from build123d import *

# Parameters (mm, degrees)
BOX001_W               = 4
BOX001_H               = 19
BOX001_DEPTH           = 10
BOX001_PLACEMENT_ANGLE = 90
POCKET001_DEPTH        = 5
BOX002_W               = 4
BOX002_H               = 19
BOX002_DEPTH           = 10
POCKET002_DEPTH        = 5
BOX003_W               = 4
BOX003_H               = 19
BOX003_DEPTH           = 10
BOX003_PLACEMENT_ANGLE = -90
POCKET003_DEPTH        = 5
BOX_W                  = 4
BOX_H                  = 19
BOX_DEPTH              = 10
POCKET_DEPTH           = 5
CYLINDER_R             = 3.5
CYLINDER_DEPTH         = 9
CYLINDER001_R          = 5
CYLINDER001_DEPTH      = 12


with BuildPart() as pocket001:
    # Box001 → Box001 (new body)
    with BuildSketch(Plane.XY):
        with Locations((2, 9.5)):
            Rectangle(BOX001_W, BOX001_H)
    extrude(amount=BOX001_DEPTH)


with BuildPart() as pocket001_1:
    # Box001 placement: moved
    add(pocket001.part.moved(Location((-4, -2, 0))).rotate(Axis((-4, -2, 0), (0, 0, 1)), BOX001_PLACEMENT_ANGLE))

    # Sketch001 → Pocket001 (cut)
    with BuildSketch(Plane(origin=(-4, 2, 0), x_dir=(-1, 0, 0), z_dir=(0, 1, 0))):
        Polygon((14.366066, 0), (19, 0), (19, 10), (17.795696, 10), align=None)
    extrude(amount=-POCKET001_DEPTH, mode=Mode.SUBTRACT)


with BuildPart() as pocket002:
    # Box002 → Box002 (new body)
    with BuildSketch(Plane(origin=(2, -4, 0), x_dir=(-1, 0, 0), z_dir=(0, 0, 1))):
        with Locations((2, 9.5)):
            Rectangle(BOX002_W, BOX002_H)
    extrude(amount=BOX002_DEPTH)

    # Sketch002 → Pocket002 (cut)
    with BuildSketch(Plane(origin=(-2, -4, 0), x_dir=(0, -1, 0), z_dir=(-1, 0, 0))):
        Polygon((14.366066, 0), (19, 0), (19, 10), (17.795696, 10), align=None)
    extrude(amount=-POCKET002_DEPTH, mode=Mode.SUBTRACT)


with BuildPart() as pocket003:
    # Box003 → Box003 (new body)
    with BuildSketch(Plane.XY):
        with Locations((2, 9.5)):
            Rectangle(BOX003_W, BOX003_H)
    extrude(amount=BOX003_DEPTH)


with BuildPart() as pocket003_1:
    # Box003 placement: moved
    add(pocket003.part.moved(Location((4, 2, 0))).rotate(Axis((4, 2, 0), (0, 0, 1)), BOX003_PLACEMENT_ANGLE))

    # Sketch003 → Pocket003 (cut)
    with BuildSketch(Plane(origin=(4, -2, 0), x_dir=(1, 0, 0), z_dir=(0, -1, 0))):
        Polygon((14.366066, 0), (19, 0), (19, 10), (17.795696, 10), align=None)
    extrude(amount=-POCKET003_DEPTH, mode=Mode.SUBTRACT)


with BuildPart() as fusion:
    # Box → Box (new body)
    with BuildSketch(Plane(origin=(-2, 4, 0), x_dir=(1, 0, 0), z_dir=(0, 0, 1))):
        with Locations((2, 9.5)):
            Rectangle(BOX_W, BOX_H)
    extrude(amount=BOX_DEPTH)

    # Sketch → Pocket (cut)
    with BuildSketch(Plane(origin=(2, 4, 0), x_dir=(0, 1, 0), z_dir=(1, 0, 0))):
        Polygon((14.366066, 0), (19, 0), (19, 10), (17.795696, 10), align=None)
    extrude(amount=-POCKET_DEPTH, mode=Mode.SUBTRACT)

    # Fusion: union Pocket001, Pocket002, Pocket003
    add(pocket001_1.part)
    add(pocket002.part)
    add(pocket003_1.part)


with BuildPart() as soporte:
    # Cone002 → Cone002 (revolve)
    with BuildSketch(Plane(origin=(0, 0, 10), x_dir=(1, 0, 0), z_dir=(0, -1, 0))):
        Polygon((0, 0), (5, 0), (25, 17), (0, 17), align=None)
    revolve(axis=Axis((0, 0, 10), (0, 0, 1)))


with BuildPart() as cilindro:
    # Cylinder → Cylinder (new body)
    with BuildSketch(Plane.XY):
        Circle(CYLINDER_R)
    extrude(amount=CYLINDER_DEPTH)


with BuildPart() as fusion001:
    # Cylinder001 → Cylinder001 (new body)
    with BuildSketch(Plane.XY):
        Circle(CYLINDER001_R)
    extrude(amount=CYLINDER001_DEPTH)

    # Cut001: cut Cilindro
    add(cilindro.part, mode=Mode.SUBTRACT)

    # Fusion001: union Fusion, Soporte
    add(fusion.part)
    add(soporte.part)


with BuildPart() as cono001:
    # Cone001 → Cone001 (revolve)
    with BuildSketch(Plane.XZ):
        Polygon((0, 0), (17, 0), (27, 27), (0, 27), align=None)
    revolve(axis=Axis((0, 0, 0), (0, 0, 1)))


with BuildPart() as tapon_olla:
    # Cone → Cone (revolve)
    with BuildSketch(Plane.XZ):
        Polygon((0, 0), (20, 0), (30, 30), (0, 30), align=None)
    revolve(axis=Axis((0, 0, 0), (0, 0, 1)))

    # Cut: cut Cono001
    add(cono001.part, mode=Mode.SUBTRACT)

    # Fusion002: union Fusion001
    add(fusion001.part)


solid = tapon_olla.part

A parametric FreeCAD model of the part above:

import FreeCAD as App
import Part
import Sketcher


def add_polygon(sketch, points):
    """Adds a closed chain of lines whose ends are joined by coincident constraints."""
    first, n = sketch.GeometryCount, len(points)
    for a, b in zip(points, points[1:] + points[:1]):
        sketch.addGeometry(Part.LineSegment(App.Vector(*a, 0), App.Vector(*b, 0)), False)
    for i in range(n):
        sketch.addConstraint(Sketcher.Constraint("Coincident", first + i, 2, first + (i + 1) % n, 1))

doc = App.newDocument("Part")
params = doc.addObject("Spreadsheet::Sheet", "Params")
for row, (alias, value) in enumerate([
    ("sketch1_width", "4 mm"),
    ("sketch1_height", "19 mm"),
    ("pad1_length", "10 mm"),
    ("sketch2_height", "10 mm"),
    ("pocket1_length", "5 mm"),
    ("sketch3_width", "4 mm"),
    ("sketch3_height", "19 mm"),
    ("pad2_length", "10 mm"),
    ("sketch4_height", "10 mm"),
    ("pocket2_length", "5 mm"),
    ("sketch5_width", "4 mm"),
    ("sketch5_height", "19 mm"),
    ("pad3_length", "10 mm"),
    ("sketch6_height", "10 mm"),
    ("pocket3_length", "5 mm"),
    ("sketch7_width", "4 mm"),
    ("sketch7_height", "19 mm"),
    ("pad4_length", "10 mm"),
    ("sketch8_height", "10 mm"),
    ("pocket4_length", "5 mm"),
    ("sketch9_width", "5 mm"),
    ("sketch9_width2", "25 mm"),
    ("sketch9_height", "17 mm"),
    ("revolution_angle", "360 deg"),
    ("sketch10_diameter", "7 mm"),
    ("pad5_length", "9 mm"),
    ("sketch11_diameter", "10 mm"),
    ("pad6_length", "12 mm"),
    ("sketch12_width", "17 mm"),
    ("sketch12_width2", "27 mm"),
    ("revolution2_angle", "360 deg"),
    ("sketch13_width", "20 mm"),
    ("sketch13_width2", "30 mm"),
    ("revolution3_angle", "360 deg"),
], start=1):
    params.set(f"A{row}", alias)
    params.set(f"B{row}", "=" + value)
    params.setAlias(f"B{row}", alias)

body = doc.addObject("PartDesign::Body", "Body")

# Sketch on XY plane
sketch1 = body.newObject("Sketcher::SketchObject", "Sketch")
sketch1.AttachmentSupport = (doc.getObject("XY_Plane"), [""])
sketch1.MapMode = "FlatFace"
add_polygon(sketch1, [(0, 19), (0, 0), (4, 0), (4, 19)])  # lines 0-3
sketch1.addConstraint([
    Sketcher.Constraint("Vertical", 0),
    Sketcher.Constraint("Horizontal", 1),
    Sketcher.Constraint("Vertical", 2),
    Sketcher.Constraint("Horizontal", 3),
    Sketcher.Constraint("Coincident", 0, 2, -1, 1),
    Sketcher.Constraint("DistanceX", 1, 1, 1, 2, 4.0),
    Sketcher.Constraint("DistanceY", 0, 2, 0, 1, 19.0),
])
sketch1.setExpression("Constraints[9]", "Params.sketch1_width")
sketch1.setExpression("Constraints[10]", "Params.sketch1_height")
pad1 = body.newObject("PartDesign::Pad", "Pad")
pad1.Profile = sketch1
pad1.setExpression("Length", "Params.pad1_length")
body2 = doc.addObject("PartDesign::Body", "Body001")
doc.recompute()

body.Placement = App.Placement(App.Vector(-4, -2, 0), App.Rotation(App.Vector(0, 0, 1), 90))
boolean = body2.newObject("PartDesign::Boolean", "Boolean")
boolean.Type = "Fuse"
boolean.addObjects([body])

# Sketch on XZ plane
sketch2 = body2.newObject("Sketcher::SketchObject", "Sketch001")
sketch2.AttachmentSupport = (doc.getObject("XZ_Plane001"), [""])
sketch2.MapMode = "FlatFace"
sketch2.AttachmentOffset = App.Placement(App.Vector(0, 0, -2), App.Rotation())
add_polygon(sketch2, [(-18.366066, 0), (-23, 0), (-23, 10), (-21.795696, 10)])  # lines 0-3
sketch2.addConstraint([
    Sketcher.Constraint("Horizontal", 0),
    Sketcher.Constraint("Vertical", 1),
    Sketcher.Constraint("Horizontal", 2),
    Sketcher.Constraint("PointOnObject", 0, 2, -1),
    Sketcher.Constraint("DistanceY", 1, 1, 1, 2, 10.0),
    Sketcher.Constraint("DistanceX", 0, 2, -1, 1, 23.0),
    Sketcher.Constraint("Distance", 3, 10.571772),
    Sketcher.Constraint("DistanceX", 0, 2, 0, 1, 4.633934),
])
sketch2.setExpression("Constraints[8]", "Params.sketch2_height")
pocket1 = body2.newObject("PartDesign::Pocket", "Pocket")
pocket1.Profile = sketch2
pocket1.setExpression("Length", "Params.pocket1_length")
pocket1.Reversed = True
body3 = doc.addObject("PartDesign::Body", "Body002")

# Sketch on XY plane
sketch3 = body3.newObject("Sketcher::SketchObject", "Sketch002")
sketch3.AttachmentSupport = (doc.getObject("XY_Plane002"), [""])
sketch3.MapMode = "FlatFace"
add_polygon(sketch3, [(2, -23), (2, -4), (-2, -4), (-2, -23)])  # lines 0-3
sketch3.addConstraint([
    Sketcher.Constraint("Vertical", 0),
    Sketcher.Constraint("Horizontal", 1),
    Sketcher.Constraint("Vertical", 2),
    Sketcher.Constraint("Horizontal", 3),
    Sketcher.Constraint("DistanceX", 1, 2, 1, 1, 4.0),
    Sketcher.Constraint("DistanceY", 0, 1, 0, 2, 19.0),
    Sketcher.Constraint("DistanceX", -1, 1, 0, 2, 2.0),
    Sketcher.Constraint("DistanceY", 0, 2, -1, 1, 4.0),
])
sketch3.setExpression("Constraints[8]", "Params.sketch3_width")
sketch3.setExpression("Constraints[9]", "Params.sketch3_height")
pad2 = body3.newObject("PartDesign::Pad", "Pad001")
pad2.Profile = sketch3
pad2.setExpression("Length", "Params.pad2_length")

# Sketch on YZ plane
sketch4 = body3.newObject("Sketcher::SketchObject", "Sketch003")
sketch4.AttachmentSupport = (doc.getObject("YZ_Plane002"), [""])
sketch4.MapMode = "FlatFace"
sketch4.AttachmentOffset = App.Placement(App.Vector(0, 0, -2), App.Rotation())
add_polygon(sketch4, [(-18.366066, 0), (-23, 0), (-23, 10), (-21.795696, 10)])  # lines 0-3
sketch4.addConstraint([
    Sketcher.Constraint("Horizontal", 0),
    Sketcher.Constraint("Vertical", 1),
    Sketcher.Constraint("Horizontal", 2),
    Sketcher.Constraint("PointOnObject", 0, 2, -1),
    Sketcher.Constraint("DistanceY", 1, 1, 1, 2, 10.0),
    Sketcher.Constraint("DistanceX", 0, 2, -1, 1, 23.0),
    Sketcher.Constraint("Distance", 3, 10.571772),
    Sketcher.Constraint("DistanceX", 0, 2, 0, 1, 4.633934),
])
sketch4.setExpression("Constraints[8]", "Params.sketch4_height")
pocket2 = body3.newObject("PartDesign::Pocket", "Pocket001")
pocket2.Profile = sketch4
pocket2.setExpression("Length", "Params.pocket2_length")
pocket2.Reversed = True
body4 = doc.addObject("PartDesign::Body", "Body003")

# Sketch on XY plane
sketch5 = body4.newObject("Sketcher::SketchObject", "Sketch004")
sketch5.AttachmentSupport = (doc.getObject("XY_Plane003"), [""])
sketch5.MapMode = "FlatFace"
add_polygon(sketch5, [(0, 19), (0, 0), (4, 0), (4, 19)])  # lines 0-3
sketch5.addConstraint([
    Sketcher.Constraint("Vertical", 0),
    Sketcher.Constraint("Horizontal", 1),
    Sketcher.Constraint("Vertical", 2),
    Sketcher.Constraint("Horizontal", 3),
    Sketcher.Constraint("Coincident", 0, 2, -1, 1),
    Sketcher.Constraint("DistanceX", 1, 1, 1, 2, 4.0),
    Sketcher.Constraint("DistanceY", 0, 2, 0, 1, 19.0),
])
sketch5.setExpression("Constraints[9]", "Params.sketch5_width")
sketch5.setExpression("Constraints[10]", "Params.sketch5_height")
pad3 = body4.newObject("PartDesign::Pad", "Pad002")
pad3.Profile = sketch5
pad3.setExpression("Length", "Params.pad3_length")
body5 = doc.addObject("PartDesign::Body", "Body004")
doc.recompute()

body4.Placement = App.Placement(App.Vector(4, 2, 0), App.Rotation(App.Vector(0, 0, 1), 270))
boolean2 = body5.newObject("PartDesign::Boolean", "Boolean001")
boolean2.Type = "Fuse"
boolean2.addObjects([body4])

# Sketch on XZ plane
sketch6 = body5.newObject("Sketcher::SketchObject", "Sketch005")
sketch6.AttachmentSupport = (doc.getObject("XZ_Plane004"), [""])
sketch6.MapMode = "FlatFace"
sketch6.AttachmentOffset = App.Placement(App.Vector(0, 0, 2), App.Rotation())
add_polygon(sketch6, [(18.366066, 0), (23, 0), (23, 10), (21.795696, 10)])  # lines 0-3
sketch6.addConstraint([
    Sketcher.Constraint("Horizontal", 0),
    Sketcher.Constraint("Vertical", 1),
    Sketcher.Constraint("Horizontal", 2),
    Sketcher.Constraint("PointOnObject", 0, 2, -1),
    Sketcher.Constraint("DistanceY", 1, 1, 1, 2, 10.0),
    Sketcher.Constraint("DistanceX", -1, 1, 0, 2, 23.0),
    Sketcher.Constraint("Distance", 3, 10.571772),
    Sketcher.Constraint("DistanceX", 0, 1, 0, 2, 4.633934),
])
sketch6.setExpression("Constraints[8]", "Params.sketch6_height")
pocket3 = body5.newObject("PartDesign::Pocket", "Pocket002")
pocket3.Profile = sketch6
pocket3.setExpression("Length", "Params.pocket3_length")
body6 = doc.addObject("PartDesign::Body", "Body005")
body6.AllowCompound = True

# Sketch on XY plane
sketch7 = body6.newObject("Sketcher::SketchObject", "Sketch006")
sketch7.AttachmentSupport = (doc.getObject("XY_Plane005"), [""])
sketch7.MapMode = "FlatFace"
add_polygon(sketch7, [(-2, 23), (-2, 4), (2, 4), (2, 23)])  # lines 0-3
sketch7.addConstraint([
    Sketcher.Constraint("Vertical", 0),
    Sketcher.Constraint("Horizontal", 1),
    Sketcher.Constraint("Vertical", 2),
    Sketcher.Constraint("Horizontal", 3),
    Sketcher.Constraint("DistanceX", 1, 1, 1, 2, 4.0),
    Sketcher.Constraint("DistanceY", 0, 2, 0, 1, 19.0),
    Sketcher.Constraint("DistanceX", 0, 2, -1, 1, 2.0),
    Sketcher.Constraint("DistanceY", -1, 1, 0, 2, 4.0),
])
sketch7.setExpression("Constraints[8]", "Params.sketch7_width")
sketch7.setExpression("Constraints[9]", "Params.sketch7_height")
pad4 = body6.newObject("PartDesign::Pad", "Pad003")
pad4.Profile = sketch7
pad4.setExpression("Length", "Params.pad4_length")

# Sketch on YZ plane
sketch8 = body6.newObject("Sketcher::SketchObject", "Sketch007")
sketch8.AttachmentSupport = (doc.getObject("YZ_Plane005"), [""])
sketch8.MapMode = "FlatFace"
sketch8.AttachmentOffset = App.Placement(App.Vector(0, 0, 2), App.Rotation())
add_polygon(sketch8, [(18.366066, 0), (23, 0), (23, 10), (21.795696, 10)])  # lines 0-3
sketch8.addConstraint([
    Sketcher.Constraint("Horizontal", 0),
    Sketcher.Constraint("Vertical", 1),
    Sketcher.Constraint("Horizontal", 2),
    Sketcher.Constraint("PointOnObject", 0, 2, -1),
    Sketcher.Constraint("DistanceY", 1, 1, 1, 2, 10.0),
    Sketcher.Constraint("DistanceX", -1, 1, 0, 2, 23.0),
    Sketcher.Constraint("Distance", 3, 10.571772),
    Sketcher.Constraint("DistanceX", 0, 1, 0, 2, 4.633934),
])
sketch8.setExpression("Constraints[8]", "Params.sketch8_height")
pocket4 = body6.newObject("PartDesign::Pocket", "Pocket003")
pocket4.Profile = sketch8
pocket4.setExpression("Length", "Params.pocket4_length")
doc.recompute()

boolean3 = body6.newObject("PartDesign::Boolean", "Boolean002")
boolean3.Type = "Fuse"
boolean3.addObjects([body2])
doc.recompute()

boolean4 = body6.newObject("PartDesign::Boolean", "Boolean003")
boolean4.Type = "Fuse"
boolean4.addObjects([body3])
doc.recompute()

boolean5 = body6.newObject("PartDesign::Boolean", "Boolean004")
boolean5.Type = "Fuse"
boolean5.addObjects([body5])
body7 = doc.addObject("PartDesign::Body", "Body006")

# Sketch on XZ plane
sketch9 = body7.newObject("Sketcher::SketchObject", "Sketch008")
sketch9.AttachmentSupport = (doc.getObject("XZ_Plane006"), [""])
sketch9.MapMode = "FlatFace"
add_polygon(sketch9, [(0, 10), (5, 10), (25, 27), (0, 27)])  # lines 0-3
sketch9.addConstraint([
    Sketcher.Constraint("Horizontal", 0),
    Sketcher.Constraint("Horizontal", 2),
    Sketcher.Constraint("Vertical", 3),
    Sketcher.Constraint("PointOnObject", 2, 2, -2),
    Sketcher.Constraint("DistanceX", 0, 1, 0, 2, 5.0),
    Sketcher.Constraint("DistanceX", 2, 2, 2, 1, 25.0),
    Sketcher.Constraint("DistanceY", 3, 2, 3, 1, 17.0),
    Sketcher.Constraint("DistanceY", -1, 1, 0, 2, 10.0),
])
sketch9.setExpression("Constraints[8]", "Params.sketch9_width")
sketch9.setExpression("Constraints[9]", "Params.sketch9_width2")
sketch9.setExpression("Constraints[10]", "Params.sketch9_height")
revolution = body7.newObject("PartDesign::Revolution", "Revolution")
revolution.Profile = sketch9
revolution.ReferenceAxis = (sketch9, ["V_Axis"])
revolution.setExpression("Angle", "Params.revolution_angle")
body8 = doc.addObject("PartDesign::Body", "Body007")

# Sketch on XY plane
sketch10 = body8.newObject("Sketcher::SketchObject", "Sketch009")
sketch10.AttachmentSupport = (doc.getObject("XY_Plane007"), [""])
sketch10.MapMode = "FlatFace"
sketch10.addGeometry(Part.Circle(App.Vector(0, 0, 0), App.Vector(0, 0, 1), 3.5), False)
sketch10.addConstraint([
    Sketcher.Constraint("Coincident", 0, 3, -1, 1),
    Sketcher.Constraint("Diameter", 0, 7.0),
])
sketch10.setExpression("Constraints[1]", "Params.sketch10_diameter")
pad5 = body8.newObject("PartDesign::Pad", "Pad004")
pad5.Profile = sketch10
pad5.setExpression("Length", "Params.pad5_length")
body9 = doc.addObject("PartDesign::Body", "Body008")

# Sketch on XY plane
sketch11 = body9.newObject("Sketcher::SketchObject", "Sketch010")
sketch11.AttachmentSupport = (doc.getObject("XY_Plane008"), [""])
sketch11.MapMode = "FlatFace"
sketch11.addGeometry(Part.Circle(App.Vector(0, 0, 0), App.Vector(0, 0, 1), 5), False)
sketch11.addConstraint([
    Sketcher.Constraint("Coincident", 0, 3, -1, 1),
    Sketcher.Constraint("Diameter", 0, 10.0),
])
sketch11.setExpression("Constraints[1]", "Params.sketch11_diameter")
pad6 = body9.newObject("PartDesign::Pad", "Pad005")
pad6.Profile = sketch11
pad6.setExpression("Length", "Params.pad6_length")
doc.recompute()

boolean6 = body9.newObject("PartDesign::Boolean", "Boolean005")
boolean6.Type = "Cut"
boolean6.addObjects([body8])
doc.recompute()

boolean7 = body9.newObject("PartDesign::Boolean", "Boolean006")
boolean7.Type = "Fuse"
boolean7.addObjects([body6])
doc.recompute()

boolean8 = body9.newObject("PartDesign::Boolean", "Boolean007")
boolean8.Type = "Fuse"
boolean8.addObjects([body7])
body10 = doc.addObject("PartDesign::Body", "Body009")

# Sketch on XZ plane
sketch12 = body10.newObject("Sketcher::SketchObject", "Sketch011")
sketch12.AttachmentSupport = (doc.getObject("XZ_Plane009"), [""])
sketch12.MapMode = "FlatFace"
add_polygon(sketch12, [(0, 0), (17, 0), (27, 27), (0, 27)])  # lines 0-3
sketch12.addConstraint([
    Sketcher.Constraint("Horizontal", 0),
    Sketcher.Constraint("Horizontal", 2),
    Sketcher.Constraint("Vertical", 3),
    Sketcher.Constraint("Coincident", 3, 2, -1, 1),
    Sketcher.Constraint("Equal", 2, 3),
    Sketcher.Constraint("DistanceX", 0, 1, 0, 2, 17.0),
    Sketcher.Constraint("DistanceX", 2, 2, 2, 1, 27.0),
])
sketch12.setExpression("Constraints[9]", "Params.sketch12_width")
sketch12.setExpression("Constraints[10]", "Params.sketch12_width2")
revolution2 = body10.newObject("PartDesign::Revolution", "Revolution001")
revolution2.Profile = sketch12
revolution2.ReferenceAxis = (sketch12, ["V_Axis"])
revolution2.setExpression("Angle", "Params.revolution2_angle")
body11 = doc.addObject("PartDesign::Body", "Body010")

# Sketch on XZ plane
sketch13 = body11.newObject("Sketcher::SketchObject", "Sketch012")
sketch13.AttachmentSupport = (doc.getObject("XZ_Plane010"), [""])
sketch13.MapMode = "FlatFace"
add_polygon(sketch13, [(0, 0), (20, 0), (30, 30), (0, 30)])  # lines 0-3
sketch13.addConstraint([
    Sketcher.Constraint("Horizontal", 0),
    Sketcher.Constraint("Horizontal", 2),
    Sketcher.Constraint("Vertical", 3),
    Sketcher.Constraint("Coincident", 3, 2, -1, 1),
    Sketcher.Constraint("Equal", 2, 3),
    Sketcher.Constraint("DistanceX", 0, 1, 0, 2, 20.0),
    Sketcher.Constraint("DistanceX", 2, 2, 2, 1, 30.0),
])
sketch13.setExpression("Constraints[9]", "Params.sketch13_width")
sketch13.setExpression("Constraints[10]", "Params.sketch13_width2")
revolution3 = body11.newObject("PartDesign::Revolution", "Revolution002")
revolution3.Profile = sketch13
revolution3.ReferenceAxis = (sketch13, ["V_Axis"])
revolution3.setExpression("Angle", "Params.revolution3_angle")
doc.recompute()

boolean9 = body11.newObject("PartDesign::Boolean", "Boolean008")
boolean9.Type = "Cut"
boolean9.addObjects([body10])
doc.recompute()

boolean10 = body11.newObject("PartDesign::Boolean", "Boolean009")
boolean10.Type = "Fuse"
boolean10.addObjects([body9])

doc.recompute()
